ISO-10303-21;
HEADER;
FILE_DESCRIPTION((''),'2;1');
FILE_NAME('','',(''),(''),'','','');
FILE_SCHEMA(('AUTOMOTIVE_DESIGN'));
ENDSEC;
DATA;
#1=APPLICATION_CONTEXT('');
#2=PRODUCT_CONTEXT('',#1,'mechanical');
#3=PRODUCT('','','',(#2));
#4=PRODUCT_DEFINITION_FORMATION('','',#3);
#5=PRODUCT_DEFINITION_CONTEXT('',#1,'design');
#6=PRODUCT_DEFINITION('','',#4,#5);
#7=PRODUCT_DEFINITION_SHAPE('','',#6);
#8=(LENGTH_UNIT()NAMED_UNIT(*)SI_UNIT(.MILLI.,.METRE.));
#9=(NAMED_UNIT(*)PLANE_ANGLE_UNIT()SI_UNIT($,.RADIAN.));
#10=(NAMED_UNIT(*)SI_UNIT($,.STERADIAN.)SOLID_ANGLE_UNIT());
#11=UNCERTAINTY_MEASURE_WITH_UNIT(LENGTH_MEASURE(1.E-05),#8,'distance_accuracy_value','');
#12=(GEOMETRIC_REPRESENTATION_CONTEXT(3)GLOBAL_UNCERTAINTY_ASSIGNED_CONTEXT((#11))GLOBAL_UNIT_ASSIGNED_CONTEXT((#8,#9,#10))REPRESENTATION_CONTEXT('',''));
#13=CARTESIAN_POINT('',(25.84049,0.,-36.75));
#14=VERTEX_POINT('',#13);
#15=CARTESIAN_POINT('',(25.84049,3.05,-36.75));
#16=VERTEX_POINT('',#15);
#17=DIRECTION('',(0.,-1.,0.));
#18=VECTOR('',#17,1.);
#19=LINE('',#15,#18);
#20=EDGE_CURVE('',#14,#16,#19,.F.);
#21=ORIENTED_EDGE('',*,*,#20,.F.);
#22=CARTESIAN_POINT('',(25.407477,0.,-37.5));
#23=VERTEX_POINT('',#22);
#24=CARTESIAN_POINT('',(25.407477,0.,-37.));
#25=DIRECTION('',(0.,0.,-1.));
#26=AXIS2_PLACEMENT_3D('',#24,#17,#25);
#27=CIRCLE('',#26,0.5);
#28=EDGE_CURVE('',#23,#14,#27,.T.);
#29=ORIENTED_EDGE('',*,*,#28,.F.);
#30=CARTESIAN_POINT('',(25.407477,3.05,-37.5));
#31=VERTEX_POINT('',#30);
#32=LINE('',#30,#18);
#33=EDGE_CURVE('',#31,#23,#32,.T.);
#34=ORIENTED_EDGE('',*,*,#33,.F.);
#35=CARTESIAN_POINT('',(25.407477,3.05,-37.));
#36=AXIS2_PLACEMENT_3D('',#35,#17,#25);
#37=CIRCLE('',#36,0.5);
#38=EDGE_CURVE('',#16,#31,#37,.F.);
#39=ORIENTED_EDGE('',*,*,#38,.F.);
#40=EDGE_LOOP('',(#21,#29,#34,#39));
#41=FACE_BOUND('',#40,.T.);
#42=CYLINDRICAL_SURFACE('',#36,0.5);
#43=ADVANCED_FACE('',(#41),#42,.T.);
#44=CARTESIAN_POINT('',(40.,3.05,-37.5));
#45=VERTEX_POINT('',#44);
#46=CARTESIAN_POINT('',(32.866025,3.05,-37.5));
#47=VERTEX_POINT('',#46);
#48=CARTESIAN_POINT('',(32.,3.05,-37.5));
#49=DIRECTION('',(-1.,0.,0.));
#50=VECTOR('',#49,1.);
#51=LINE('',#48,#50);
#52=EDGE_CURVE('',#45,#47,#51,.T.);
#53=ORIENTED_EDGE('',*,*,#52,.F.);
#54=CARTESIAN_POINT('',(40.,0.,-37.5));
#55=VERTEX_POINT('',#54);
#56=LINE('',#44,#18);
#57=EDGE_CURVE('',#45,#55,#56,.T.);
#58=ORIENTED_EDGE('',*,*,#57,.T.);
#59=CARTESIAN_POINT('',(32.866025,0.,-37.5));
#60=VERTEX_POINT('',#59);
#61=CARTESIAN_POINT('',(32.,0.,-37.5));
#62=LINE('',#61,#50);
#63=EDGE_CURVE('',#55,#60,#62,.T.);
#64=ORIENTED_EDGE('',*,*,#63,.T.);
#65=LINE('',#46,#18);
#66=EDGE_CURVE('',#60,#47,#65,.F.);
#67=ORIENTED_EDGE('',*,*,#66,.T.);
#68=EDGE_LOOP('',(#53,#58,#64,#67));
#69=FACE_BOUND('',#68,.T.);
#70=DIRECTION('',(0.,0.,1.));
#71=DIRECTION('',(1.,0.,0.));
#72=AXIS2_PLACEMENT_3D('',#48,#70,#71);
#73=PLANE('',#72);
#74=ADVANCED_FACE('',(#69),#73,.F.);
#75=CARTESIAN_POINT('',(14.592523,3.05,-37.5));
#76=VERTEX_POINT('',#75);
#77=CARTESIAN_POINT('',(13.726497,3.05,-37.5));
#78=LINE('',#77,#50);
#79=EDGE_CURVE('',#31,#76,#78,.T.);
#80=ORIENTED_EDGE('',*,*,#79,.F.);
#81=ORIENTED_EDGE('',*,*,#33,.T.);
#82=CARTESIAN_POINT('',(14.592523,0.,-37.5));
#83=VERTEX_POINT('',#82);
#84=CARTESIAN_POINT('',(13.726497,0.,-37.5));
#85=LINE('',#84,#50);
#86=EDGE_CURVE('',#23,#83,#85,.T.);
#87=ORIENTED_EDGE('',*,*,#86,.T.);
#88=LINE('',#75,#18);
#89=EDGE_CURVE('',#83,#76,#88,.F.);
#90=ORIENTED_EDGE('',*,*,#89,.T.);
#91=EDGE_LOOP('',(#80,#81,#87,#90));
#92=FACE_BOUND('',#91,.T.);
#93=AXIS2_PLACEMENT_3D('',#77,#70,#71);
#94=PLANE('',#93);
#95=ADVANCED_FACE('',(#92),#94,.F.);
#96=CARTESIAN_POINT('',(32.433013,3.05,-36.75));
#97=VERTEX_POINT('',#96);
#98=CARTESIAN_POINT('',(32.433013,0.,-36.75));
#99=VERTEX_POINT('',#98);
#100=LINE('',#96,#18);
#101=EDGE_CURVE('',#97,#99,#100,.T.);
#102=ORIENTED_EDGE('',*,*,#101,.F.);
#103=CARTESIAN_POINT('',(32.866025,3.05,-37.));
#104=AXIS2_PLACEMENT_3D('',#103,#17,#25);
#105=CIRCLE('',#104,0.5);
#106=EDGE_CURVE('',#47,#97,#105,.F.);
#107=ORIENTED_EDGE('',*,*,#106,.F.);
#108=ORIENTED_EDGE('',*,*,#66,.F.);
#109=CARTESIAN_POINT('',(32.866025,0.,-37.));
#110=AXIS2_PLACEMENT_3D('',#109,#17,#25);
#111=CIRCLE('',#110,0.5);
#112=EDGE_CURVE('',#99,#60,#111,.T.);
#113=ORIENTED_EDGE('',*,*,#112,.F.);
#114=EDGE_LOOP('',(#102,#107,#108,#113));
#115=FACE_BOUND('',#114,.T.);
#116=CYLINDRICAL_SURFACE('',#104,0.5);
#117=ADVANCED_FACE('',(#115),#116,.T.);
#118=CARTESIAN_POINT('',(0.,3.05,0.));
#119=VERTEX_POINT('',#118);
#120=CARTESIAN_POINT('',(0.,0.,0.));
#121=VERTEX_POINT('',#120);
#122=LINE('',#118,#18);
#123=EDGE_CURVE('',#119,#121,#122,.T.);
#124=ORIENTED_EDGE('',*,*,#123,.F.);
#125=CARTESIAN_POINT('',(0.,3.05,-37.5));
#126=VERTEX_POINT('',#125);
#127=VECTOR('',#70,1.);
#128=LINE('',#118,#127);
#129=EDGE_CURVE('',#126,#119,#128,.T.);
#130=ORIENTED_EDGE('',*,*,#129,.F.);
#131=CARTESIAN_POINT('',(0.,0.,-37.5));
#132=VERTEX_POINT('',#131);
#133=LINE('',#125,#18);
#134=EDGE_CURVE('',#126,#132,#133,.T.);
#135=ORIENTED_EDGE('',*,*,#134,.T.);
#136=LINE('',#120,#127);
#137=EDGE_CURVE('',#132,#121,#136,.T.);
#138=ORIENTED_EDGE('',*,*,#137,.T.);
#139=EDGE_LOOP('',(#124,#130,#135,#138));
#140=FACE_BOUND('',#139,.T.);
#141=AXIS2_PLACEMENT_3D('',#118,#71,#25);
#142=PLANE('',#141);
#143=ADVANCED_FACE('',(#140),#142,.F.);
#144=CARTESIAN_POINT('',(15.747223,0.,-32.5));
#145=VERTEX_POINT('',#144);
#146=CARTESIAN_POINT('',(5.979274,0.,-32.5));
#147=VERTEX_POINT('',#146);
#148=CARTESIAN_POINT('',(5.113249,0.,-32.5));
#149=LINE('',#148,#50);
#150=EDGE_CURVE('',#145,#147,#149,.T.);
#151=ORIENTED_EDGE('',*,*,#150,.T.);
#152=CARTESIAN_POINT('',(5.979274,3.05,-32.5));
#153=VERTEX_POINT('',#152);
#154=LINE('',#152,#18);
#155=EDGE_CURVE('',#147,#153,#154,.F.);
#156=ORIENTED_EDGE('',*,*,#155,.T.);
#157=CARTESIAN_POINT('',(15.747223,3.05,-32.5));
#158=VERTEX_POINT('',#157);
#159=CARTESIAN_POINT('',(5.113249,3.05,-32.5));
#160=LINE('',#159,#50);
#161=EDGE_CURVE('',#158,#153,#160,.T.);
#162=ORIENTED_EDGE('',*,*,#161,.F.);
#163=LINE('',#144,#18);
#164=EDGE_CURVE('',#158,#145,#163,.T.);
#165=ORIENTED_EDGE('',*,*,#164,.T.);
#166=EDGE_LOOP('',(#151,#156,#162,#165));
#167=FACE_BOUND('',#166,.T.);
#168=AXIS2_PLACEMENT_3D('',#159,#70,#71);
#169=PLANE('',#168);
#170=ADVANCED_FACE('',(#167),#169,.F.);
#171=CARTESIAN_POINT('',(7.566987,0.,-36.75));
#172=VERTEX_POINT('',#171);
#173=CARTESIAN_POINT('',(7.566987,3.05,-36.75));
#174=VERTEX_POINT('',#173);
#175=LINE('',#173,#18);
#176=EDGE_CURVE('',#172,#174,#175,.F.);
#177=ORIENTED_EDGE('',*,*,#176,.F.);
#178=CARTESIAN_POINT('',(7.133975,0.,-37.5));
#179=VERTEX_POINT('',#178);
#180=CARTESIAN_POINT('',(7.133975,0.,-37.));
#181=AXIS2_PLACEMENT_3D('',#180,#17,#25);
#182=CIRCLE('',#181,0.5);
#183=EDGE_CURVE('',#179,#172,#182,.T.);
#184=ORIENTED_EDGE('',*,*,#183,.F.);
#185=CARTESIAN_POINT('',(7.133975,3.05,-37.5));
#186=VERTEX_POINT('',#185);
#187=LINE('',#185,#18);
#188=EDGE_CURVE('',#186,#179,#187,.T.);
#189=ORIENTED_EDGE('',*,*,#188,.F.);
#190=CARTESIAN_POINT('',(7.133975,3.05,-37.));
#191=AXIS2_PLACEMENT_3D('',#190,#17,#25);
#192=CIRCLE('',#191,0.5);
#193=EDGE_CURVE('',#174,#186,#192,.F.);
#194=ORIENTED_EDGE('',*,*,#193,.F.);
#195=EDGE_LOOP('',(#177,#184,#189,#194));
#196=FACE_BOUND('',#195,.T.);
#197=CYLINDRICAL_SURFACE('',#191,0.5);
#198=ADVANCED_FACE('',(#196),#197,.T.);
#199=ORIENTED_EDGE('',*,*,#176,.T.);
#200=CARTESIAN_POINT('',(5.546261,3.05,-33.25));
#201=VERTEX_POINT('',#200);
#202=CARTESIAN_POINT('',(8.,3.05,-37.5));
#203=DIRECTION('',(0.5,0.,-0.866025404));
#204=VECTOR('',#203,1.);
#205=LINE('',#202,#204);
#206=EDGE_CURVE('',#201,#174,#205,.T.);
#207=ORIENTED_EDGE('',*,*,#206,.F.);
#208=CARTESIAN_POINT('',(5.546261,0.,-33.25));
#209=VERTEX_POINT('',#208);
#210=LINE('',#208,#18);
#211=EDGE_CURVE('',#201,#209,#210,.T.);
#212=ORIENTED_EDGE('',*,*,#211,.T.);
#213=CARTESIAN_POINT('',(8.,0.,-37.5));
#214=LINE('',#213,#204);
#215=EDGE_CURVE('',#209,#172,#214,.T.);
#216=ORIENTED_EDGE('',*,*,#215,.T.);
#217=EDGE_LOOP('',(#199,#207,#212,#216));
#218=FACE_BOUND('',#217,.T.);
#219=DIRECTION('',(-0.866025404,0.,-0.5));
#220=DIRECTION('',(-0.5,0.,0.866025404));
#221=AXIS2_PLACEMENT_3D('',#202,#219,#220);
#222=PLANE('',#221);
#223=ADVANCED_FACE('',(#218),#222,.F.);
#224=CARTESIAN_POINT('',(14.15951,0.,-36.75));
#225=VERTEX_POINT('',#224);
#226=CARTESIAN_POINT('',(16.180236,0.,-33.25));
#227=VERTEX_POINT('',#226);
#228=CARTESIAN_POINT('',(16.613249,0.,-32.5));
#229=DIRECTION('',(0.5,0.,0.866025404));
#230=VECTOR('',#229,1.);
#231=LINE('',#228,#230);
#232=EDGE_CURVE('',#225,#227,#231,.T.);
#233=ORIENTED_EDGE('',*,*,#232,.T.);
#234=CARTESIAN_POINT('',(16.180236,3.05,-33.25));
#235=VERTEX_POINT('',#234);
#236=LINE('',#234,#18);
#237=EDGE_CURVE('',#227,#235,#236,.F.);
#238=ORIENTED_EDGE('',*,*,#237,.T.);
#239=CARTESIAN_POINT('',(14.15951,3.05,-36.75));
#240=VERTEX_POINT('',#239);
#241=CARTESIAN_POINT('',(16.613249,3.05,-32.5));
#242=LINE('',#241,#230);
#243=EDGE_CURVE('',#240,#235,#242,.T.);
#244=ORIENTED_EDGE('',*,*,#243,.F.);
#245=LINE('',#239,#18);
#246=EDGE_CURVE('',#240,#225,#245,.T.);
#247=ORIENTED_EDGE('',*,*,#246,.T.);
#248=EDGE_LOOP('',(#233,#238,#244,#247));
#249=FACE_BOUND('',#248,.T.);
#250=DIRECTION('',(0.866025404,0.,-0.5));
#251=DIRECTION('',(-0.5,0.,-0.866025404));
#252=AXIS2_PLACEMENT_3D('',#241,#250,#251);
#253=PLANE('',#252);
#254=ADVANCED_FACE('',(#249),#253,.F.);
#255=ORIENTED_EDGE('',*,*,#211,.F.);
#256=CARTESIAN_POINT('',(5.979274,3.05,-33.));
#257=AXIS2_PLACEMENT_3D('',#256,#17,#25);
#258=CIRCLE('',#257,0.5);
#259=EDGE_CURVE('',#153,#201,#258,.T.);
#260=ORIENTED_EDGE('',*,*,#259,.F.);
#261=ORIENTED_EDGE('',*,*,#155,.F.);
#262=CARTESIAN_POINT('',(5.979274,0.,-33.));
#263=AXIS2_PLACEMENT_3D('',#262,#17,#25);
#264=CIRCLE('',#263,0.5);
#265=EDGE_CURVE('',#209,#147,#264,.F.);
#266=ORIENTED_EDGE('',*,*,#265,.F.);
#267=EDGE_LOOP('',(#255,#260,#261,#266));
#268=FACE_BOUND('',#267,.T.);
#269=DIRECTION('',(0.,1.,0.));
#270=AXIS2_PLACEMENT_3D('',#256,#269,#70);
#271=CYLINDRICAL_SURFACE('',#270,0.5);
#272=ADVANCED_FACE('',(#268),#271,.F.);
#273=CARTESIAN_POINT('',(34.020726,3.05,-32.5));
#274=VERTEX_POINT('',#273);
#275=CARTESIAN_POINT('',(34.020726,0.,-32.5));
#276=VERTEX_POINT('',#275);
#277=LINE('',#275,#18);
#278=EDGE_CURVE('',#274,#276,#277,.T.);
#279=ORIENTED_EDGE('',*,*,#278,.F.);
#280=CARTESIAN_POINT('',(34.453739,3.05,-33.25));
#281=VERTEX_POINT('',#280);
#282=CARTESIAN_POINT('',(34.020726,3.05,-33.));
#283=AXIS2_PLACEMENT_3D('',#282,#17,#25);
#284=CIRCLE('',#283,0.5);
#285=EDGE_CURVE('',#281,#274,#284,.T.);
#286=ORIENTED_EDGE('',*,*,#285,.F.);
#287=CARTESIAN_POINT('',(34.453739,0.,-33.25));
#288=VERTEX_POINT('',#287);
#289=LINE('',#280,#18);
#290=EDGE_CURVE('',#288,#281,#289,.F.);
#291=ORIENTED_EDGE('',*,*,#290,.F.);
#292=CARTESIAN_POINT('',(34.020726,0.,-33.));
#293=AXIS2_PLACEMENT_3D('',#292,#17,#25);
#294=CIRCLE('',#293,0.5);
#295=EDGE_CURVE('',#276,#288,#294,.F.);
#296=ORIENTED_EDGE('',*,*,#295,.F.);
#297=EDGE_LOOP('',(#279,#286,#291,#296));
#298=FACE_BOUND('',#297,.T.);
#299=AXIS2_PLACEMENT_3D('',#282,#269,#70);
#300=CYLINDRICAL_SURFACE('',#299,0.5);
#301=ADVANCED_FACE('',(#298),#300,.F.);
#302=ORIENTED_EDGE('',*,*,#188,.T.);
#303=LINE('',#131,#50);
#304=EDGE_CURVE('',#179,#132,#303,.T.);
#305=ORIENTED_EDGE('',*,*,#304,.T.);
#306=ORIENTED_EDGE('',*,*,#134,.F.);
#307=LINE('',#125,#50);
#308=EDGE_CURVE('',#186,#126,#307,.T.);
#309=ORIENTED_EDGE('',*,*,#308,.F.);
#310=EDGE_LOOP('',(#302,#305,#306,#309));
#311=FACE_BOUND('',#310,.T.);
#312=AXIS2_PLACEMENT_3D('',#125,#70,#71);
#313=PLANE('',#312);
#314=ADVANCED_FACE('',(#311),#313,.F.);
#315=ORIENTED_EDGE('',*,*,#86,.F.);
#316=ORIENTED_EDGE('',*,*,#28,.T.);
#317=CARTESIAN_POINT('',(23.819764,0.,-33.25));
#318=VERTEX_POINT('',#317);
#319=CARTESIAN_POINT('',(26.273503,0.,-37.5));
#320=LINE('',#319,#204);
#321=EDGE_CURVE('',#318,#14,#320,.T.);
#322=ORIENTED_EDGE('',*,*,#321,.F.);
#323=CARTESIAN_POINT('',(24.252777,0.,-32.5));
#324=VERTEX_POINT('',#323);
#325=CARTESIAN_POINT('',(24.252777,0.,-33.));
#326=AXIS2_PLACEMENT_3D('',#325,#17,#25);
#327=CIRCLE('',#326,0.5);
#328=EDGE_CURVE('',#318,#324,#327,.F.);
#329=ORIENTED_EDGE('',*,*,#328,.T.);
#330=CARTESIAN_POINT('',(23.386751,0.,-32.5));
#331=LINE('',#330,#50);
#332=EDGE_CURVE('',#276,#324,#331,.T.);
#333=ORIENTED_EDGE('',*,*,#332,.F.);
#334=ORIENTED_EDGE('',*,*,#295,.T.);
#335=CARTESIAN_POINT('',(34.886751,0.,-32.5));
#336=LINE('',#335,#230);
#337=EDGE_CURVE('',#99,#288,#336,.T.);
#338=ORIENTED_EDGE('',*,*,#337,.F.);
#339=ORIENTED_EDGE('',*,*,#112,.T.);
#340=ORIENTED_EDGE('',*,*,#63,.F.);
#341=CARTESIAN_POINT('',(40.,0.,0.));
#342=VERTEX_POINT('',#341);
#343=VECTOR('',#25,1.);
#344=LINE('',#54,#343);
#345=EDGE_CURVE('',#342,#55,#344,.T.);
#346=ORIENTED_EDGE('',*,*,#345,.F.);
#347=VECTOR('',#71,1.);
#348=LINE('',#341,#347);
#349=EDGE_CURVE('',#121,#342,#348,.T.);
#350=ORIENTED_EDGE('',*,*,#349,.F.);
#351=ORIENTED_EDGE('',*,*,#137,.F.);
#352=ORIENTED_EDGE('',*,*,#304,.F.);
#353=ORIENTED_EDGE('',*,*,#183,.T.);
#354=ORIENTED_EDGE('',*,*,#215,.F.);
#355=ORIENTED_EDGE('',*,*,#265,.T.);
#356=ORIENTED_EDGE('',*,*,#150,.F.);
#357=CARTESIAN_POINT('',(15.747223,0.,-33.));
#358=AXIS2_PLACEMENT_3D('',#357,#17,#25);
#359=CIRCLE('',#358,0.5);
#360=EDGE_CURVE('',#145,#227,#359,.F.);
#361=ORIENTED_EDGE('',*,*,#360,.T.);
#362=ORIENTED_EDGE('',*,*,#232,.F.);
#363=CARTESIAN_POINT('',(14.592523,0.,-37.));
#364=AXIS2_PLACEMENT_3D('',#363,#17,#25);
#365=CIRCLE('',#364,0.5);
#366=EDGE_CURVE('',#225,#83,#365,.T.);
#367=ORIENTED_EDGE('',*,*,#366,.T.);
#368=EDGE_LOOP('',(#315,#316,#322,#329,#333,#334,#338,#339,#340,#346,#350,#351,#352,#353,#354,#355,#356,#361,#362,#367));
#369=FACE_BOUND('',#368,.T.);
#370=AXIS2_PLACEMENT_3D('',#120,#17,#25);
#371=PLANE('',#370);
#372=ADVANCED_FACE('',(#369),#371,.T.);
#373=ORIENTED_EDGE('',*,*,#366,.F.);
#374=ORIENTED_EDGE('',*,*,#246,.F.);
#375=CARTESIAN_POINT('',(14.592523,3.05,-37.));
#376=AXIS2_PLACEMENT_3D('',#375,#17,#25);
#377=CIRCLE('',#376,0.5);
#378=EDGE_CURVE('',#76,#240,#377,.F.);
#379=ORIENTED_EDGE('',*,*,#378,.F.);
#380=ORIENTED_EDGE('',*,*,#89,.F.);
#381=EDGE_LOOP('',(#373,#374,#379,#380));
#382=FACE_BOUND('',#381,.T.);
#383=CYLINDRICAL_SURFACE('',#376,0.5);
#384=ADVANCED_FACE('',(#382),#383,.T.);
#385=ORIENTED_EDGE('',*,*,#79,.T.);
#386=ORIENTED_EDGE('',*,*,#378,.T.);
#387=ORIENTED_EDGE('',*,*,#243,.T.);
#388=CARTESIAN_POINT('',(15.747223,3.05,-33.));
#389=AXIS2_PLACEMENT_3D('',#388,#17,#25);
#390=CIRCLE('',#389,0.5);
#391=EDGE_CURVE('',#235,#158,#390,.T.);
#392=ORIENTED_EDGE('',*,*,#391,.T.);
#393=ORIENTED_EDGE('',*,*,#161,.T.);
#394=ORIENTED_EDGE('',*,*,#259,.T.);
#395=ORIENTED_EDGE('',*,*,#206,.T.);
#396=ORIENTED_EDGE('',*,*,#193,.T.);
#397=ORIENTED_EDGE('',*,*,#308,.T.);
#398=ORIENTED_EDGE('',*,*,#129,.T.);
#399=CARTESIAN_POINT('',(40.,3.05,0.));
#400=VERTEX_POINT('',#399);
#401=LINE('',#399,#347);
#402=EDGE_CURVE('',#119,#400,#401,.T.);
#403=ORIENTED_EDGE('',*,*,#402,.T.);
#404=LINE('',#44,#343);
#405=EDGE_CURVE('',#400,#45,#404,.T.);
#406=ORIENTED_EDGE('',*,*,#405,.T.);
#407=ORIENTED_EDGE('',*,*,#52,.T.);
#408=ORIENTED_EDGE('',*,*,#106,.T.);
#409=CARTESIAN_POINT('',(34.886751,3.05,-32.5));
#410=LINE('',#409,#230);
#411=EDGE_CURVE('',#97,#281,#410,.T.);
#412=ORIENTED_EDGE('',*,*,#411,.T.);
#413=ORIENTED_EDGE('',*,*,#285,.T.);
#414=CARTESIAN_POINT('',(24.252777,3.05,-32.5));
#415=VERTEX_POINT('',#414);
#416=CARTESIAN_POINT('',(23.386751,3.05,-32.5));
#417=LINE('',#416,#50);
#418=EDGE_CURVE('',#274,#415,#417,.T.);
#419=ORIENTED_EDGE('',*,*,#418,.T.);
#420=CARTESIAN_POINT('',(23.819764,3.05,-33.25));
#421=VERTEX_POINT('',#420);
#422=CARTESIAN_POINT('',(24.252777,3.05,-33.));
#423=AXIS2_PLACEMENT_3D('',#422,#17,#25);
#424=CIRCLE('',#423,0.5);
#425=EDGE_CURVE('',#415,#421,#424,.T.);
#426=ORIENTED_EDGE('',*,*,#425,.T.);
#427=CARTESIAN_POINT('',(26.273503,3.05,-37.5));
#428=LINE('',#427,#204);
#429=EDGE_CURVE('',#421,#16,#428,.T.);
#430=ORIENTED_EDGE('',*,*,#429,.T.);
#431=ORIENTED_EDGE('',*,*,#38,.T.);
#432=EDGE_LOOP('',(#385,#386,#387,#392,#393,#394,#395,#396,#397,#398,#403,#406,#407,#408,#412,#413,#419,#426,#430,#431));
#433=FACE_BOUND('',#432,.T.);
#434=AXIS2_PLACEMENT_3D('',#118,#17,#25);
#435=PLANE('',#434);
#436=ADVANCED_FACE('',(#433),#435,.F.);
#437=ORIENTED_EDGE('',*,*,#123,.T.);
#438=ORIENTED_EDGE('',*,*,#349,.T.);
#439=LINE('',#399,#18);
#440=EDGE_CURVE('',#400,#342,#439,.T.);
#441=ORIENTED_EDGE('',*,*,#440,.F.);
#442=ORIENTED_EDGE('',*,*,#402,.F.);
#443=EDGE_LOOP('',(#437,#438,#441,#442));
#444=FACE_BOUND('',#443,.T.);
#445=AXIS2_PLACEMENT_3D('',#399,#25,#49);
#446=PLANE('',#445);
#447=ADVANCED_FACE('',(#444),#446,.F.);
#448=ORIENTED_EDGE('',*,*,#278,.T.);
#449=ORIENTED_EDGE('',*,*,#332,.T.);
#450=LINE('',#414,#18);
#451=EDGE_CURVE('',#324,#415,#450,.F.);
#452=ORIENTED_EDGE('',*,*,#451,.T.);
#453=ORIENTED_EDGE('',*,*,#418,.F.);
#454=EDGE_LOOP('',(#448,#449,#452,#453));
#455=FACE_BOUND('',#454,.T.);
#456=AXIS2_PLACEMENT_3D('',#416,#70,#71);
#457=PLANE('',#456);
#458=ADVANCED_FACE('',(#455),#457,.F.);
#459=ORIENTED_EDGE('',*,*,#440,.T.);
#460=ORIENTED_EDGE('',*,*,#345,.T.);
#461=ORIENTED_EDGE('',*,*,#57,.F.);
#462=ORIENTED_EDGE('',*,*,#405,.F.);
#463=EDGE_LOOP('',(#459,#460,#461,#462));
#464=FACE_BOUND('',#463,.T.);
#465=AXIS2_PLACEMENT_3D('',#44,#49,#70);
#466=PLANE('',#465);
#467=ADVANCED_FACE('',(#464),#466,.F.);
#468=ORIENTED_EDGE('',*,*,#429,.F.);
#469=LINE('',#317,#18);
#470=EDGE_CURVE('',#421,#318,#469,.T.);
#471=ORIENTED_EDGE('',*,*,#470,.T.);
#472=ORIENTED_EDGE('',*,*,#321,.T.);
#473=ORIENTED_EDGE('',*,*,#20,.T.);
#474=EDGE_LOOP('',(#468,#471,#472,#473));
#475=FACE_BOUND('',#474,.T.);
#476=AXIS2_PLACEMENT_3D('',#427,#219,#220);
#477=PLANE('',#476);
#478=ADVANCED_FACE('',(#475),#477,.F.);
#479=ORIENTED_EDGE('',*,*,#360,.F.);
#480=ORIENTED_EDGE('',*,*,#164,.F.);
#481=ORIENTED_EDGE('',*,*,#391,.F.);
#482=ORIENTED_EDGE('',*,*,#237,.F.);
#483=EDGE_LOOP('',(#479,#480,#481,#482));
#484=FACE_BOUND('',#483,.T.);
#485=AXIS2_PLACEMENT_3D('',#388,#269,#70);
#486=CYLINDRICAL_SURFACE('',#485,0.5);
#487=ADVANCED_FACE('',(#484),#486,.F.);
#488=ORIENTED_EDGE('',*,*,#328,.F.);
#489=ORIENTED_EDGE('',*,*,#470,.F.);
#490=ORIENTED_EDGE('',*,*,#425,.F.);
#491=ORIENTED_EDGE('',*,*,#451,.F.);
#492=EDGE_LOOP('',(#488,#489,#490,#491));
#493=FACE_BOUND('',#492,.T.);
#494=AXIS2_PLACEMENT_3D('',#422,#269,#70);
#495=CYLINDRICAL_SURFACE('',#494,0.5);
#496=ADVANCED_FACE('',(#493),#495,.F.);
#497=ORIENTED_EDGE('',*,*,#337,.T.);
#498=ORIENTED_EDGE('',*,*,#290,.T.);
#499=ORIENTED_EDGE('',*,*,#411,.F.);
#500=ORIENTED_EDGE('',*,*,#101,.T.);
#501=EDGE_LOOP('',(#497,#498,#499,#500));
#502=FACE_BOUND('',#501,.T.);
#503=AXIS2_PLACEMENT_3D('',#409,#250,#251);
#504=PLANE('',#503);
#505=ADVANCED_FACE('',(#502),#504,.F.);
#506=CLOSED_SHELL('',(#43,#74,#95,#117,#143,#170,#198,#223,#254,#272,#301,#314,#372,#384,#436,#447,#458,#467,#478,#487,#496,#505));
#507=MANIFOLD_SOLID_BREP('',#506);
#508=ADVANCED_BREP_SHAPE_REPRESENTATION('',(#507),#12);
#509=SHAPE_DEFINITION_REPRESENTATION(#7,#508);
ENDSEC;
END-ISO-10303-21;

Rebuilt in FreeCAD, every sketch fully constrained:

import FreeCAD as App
import Part
import Sketcher

V = App.Vector
Q = App.Units.Quantity


def edges_at(feature, points):
    """Names of the edges that pass closest to the given points."""
    edges = feature.Shape.Edges
    near = lambda p: min(range(len(edges)), key=lambda i: edges[i].distToShape(Part.Vertex(*p))[0])
    return sorted({f"Edge{near(p) + 1}" for p in points})


def add_polygon(sketch, points):
    """Adds a closed chain of lines whose ends are joined by coincident constraints."""
    first, n = sketch.GeometryCount, len(points)
    for a, b in zip(points, points[1:] + points[:1]):
        sketch.addGeometry(Part.LineSegment(App.Vector(*a, 0), App.Vector(*b, 0)), False)
    for i in range(n):
        sketch.addConstraint(Sketcher.Constraint("Coincident", first + i, 2, first + (i + 1) % n, 1))

doc = App.newDocument("Part")
body = doc.addObject("PartDesign::Body", "Body")

# Sketch on XZ plane
sketch1 = doc.addObject("Sketcher::SketchObject", "Sketch")
body.addObject(sketch1)
sketch1.AttachmentSupport = (doc.XZ_Plane, [""])
sketch1.MapMode = "FlatFace"
add_polygon(sketch1, [(0, -38), (0, 0), (40, 0), (40, -38), (32, -38), (35, -32), (23, -32), (26, -38), (14, -38), (17, -32), (5, -32), (8, -38)])  # lines 0-11
sketch1.addConstraint([
    Sketcher.Constraint("Vertical", 0),
    Sketcher.Constraint("Horizontal", 1),
    Sketcher.Constraint("Vertical", 2),
    Sketcher.Constraint("Horizontal", 3),
    Sketcher.Constraint("Horizontal", 5),
    Sketcher.Constraint("Horizontal", 7),
    Sketcher.Constraint("Horizontal", 9),
    Sketcher.Constraint("Horizontal", 11),
    Sketcher.Constraint("Coincident", 0, 2, -1, 1),
    Sketcher.Constraint("Parallel", 4, 8),
    Sketcher.Constraint("Parallel", 6, 10),
    Sketcher.Constraint("Horizontal", 3, 2, 6, 2),
    Sketcher.Constraint("Horizontal", 5, 2, 8, 2),
    Sketcher.Constraint("Horizontal", 7, 2, 10, 2),
    Sketcher.Constraint("Equal", 5, 9),
    Sketcher.Constraint("Equal", 3, 11),
    Sketcher.Constraint("Equal", 4, 6),
    Sketcher.Constraint("DistanceX", 1, 1, 1, 2, 40.0),
    Sketcher.Constraint("DistanceX", 3, 2, 3, 1, 8.0),
    Sketcher.Constraint("Angle", 4, Q("60 deg")),
    Sketcher.Constraint("DistanceX", 5, 2, 5, 1, 11.5),
    Sketcher.Constraint("DistanceY", 0, 1, 0, 2, 37.5),
    Sketcher.Constraint("DistanceY", 3, 2, 4, 2, 5.0),
])
pad1 = doc.addObject("PartDesign::Pad", "Pad")
body.addObject(pad1)
pad1.Profile = sketch1
pad1.Length = 3.05
pad1.Reversed = True
doc.recompute()

fillet = doc.addObject("PartDesign::Fillet", "Fillet")
body.addObject(fillet)
fillet.Base = (pad1, edges_at(pad1, [
    (8, 1.525, -37.5),
    (5.113, 1.525, -32.5),
    (16.613, 1.525, -32.5),
    (13.726, 1.525, -37.5),
    (26.274, 1.525, -37.5),
    (23.387, 1.525, -32.5),
    (34.887, 1.525, -32.5),
    (32, 1.525, -37.5),
]))
fillet.Radius = 0.5

doc.recompute()
